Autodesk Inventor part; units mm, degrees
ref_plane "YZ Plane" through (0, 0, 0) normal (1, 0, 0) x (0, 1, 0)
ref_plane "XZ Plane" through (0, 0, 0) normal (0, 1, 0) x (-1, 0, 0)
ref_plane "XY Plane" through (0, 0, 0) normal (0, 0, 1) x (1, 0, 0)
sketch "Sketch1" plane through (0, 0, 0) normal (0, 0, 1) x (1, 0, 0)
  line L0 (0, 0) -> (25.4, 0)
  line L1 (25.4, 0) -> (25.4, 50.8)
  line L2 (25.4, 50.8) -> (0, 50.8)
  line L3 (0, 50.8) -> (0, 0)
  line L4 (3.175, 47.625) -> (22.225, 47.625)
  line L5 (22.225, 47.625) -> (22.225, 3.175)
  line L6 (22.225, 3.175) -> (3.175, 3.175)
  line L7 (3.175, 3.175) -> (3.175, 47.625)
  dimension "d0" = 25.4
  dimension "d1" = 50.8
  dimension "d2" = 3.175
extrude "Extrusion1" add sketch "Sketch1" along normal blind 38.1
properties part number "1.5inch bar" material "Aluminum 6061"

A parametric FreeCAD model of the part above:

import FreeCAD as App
import Part
import Sketcher
from FreeCAD import Vector
Q = App.Units.Quantity


def add_polygon(sketch, points):
    """Adds a closed chain of lines whose ends are joined by coincident constraints."""
    first, n = sketch.GeometryCount, len(points)
    for a, b in zip(points, points[1:] + points[:1]):
        sketch.addGeometry(Part.LineSegment(App.Vector(*a, 0), App.Vector(*b, 0)), False)
    for i in range(n):
        sketch.addConstraint(Sketcher.Constraint("Coincident", first + i, 2, first + (i + 1) % n, 1))

doc = App.newDocument("Part")
body = doc.addObject("PartDesign::Body", "Body")

sketch1 = doc.addObject("Sketcher::SketchObject", "Sketch")
body.addObject(sketch1)
sketch1.AttachmentSupport = (doc.XY_Plane, [""])
sketch1.MapMode = "FlatFace"
add_polygon(sketch1, [(0, 51), (0, 0), (25, 0), (25, 51)])
add_polygon(sketch1, [(3, 3), (3, 48), (22, 48), (22, 3)])
sketch1.addConstraint([
    Sketcher.Constraint("Vertical", 0),
    Sketcher.Constraint("Horizontal", 1),
    Sketcher.Constraint("Vertical", 2),
    Sketcher.Constraint("Horizontal", 3),
    Sketcher.Constraint("Vertical", 4),
    Sketcher.Constraint("Horizontal", 5),
    Sketcher.Constraint("Vertical", 6),
    Sketcher.Constraint("Horizontal", 7),
    Sketcher.Constraint("Coincident", 0, 2, -1, 1),
    Sketcher.Constraint("DistanceX", 1, 1, 1, 2, Q("1 in")),
    Sketcher.Constraint("DistanceY", 0, 2, 0, 1, Q("2 in")),
    Sketcher.Constraint("DistanceX", -1, 1, 4, 2, Q("0.125 in")),
    Sketcher.Constraint("DistanceY", -1, 1, 6, 2, Q("0.125 in")),
    Sketcher.Constraint("DistanceY", 4, 2, 3, 2, Q("0.125 in")),
    Sketcher.Constraint("DistanceX", 5, 2, 2, 2, Q("0.125 in")),
])
pad1 = doc.addObject("PartDesign::Pad", "Pad")
body.addObject(pad1)
pad1.Profile = sketch1
pad1.Length = Q("1.5 in")

doc.recompute()
